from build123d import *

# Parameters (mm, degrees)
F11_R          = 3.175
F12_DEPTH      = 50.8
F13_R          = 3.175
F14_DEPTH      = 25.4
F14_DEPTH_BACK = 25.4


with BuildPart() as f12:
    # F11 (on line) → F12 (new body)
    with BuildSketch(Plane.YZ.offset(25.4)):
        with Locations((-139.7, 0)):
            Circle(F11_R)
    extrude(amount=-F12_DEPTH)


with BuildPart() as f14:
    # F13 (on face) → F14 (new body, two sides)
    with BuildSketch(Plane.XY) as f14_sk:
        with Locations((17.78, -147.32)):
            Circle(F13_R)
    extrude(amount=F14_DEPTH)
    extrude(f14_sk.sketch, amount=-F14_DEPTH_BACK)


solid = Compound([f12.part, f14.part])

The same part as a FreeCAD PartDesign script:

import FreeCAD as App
import Part
import Sketcher
from FreeCAD import Vector
Q = App.Units.Quantity

doc = App.newDocument("Part")
params = doc.addObject("Spreadsheet::Sheet", "Params")
for row, (alias, value) in enumerate([
    ("sketch1_diameter", "0.25 in"),
    ("pad1_length", "2 in"),
    ("sketch2_diameter", "0.25 in"),
    ("pad2_length", "1 in"),
    ("pad2_length2", "1 in"),
], start=1):
    params.set(f"A{row}", alias)
    params.set(f"B{row}", "=" + value)
    params.setAlias(f"B{row}", alias)

body = doc.addObject("PartDesign::Body", "Body")

# Sketch on YZ plane
sketch1 = doc.addObject("Sketcher::SketchObject", "Sketch")
body.addObject(sketch1)
sketch1.AttachmentSupport = (doc.YZ_Plane, [""])
sketch1.MapMode = "FlatFace"
sketch1.AttachmentOffset = App.Placement(Vector(0, 0, 1 * 25.4), App.Rotation())
sketch1.addGeometry(Part.Circle(Vector(-139.7, 0, 0), Vector(0, 0, 1), 3.2), False)
sketch1.addConstraint([
    Sketcher.Constraint("PointOnObject", 0, 3, -1),
    Sketcher.Constraint("Diameter", 0, Q("0.25 in")),
    Sketcher.Constraint("DistanceX", 0, 3, -1, 1, Q("5.5 in")),
])
sketch1.setExpression("Constraints[1]", "Params.sketch1_diameter")
pad1 = doc.addObject("PartDesign::Pad", "Pad")
body.addObject(pad1)
pad1.Profile = sketch1
pad1.setExpression("Length", "Params.pad1_length")
pad1.Reversed = True
body2 = doc.addObject("PartDesign::Body", "Body001")

# Sketch on XY plane
sketch2 = doc.addObject("Sketcher::SketchObject", "Sketch001")
body2.addObject(sketch2)
sketch2.AttachmentSupport = (doc.getObject("XY_Plane001"), [""])
sketch2.MapMode = "FlatFace"
sketch2.addGeometry(Part.Circle(Vector(17.8, -147.3, 0), Vector(0, 0, 1), 3.2), False)
sketch2.addConstraint([
    Sketcher.Constraint("Diameter", 0, Q("0.25 in")),
    Sketcher.Constraint("DistanceX", -1, 1, 0, 3, Q("0.7 in")),
    Sketcher.Constraint("DistanceY", 0, 3, -1, 1, Q("5.8 in")),
])
sketch2.setExpression("Constraints[0]", "Params.sketch2_diameter")
pad2 = doc.addObject("PartDesign::Pad", "Pad001")
body2.addObject(pad2)
pad2.Profile = sketch2
pad2.Type = "TwoLengths"
pad2.setExpression("Length", "Params.pad2_length")
pad2.setExpression("Length2", "Params.pad2_length2")

doc.recompute()
